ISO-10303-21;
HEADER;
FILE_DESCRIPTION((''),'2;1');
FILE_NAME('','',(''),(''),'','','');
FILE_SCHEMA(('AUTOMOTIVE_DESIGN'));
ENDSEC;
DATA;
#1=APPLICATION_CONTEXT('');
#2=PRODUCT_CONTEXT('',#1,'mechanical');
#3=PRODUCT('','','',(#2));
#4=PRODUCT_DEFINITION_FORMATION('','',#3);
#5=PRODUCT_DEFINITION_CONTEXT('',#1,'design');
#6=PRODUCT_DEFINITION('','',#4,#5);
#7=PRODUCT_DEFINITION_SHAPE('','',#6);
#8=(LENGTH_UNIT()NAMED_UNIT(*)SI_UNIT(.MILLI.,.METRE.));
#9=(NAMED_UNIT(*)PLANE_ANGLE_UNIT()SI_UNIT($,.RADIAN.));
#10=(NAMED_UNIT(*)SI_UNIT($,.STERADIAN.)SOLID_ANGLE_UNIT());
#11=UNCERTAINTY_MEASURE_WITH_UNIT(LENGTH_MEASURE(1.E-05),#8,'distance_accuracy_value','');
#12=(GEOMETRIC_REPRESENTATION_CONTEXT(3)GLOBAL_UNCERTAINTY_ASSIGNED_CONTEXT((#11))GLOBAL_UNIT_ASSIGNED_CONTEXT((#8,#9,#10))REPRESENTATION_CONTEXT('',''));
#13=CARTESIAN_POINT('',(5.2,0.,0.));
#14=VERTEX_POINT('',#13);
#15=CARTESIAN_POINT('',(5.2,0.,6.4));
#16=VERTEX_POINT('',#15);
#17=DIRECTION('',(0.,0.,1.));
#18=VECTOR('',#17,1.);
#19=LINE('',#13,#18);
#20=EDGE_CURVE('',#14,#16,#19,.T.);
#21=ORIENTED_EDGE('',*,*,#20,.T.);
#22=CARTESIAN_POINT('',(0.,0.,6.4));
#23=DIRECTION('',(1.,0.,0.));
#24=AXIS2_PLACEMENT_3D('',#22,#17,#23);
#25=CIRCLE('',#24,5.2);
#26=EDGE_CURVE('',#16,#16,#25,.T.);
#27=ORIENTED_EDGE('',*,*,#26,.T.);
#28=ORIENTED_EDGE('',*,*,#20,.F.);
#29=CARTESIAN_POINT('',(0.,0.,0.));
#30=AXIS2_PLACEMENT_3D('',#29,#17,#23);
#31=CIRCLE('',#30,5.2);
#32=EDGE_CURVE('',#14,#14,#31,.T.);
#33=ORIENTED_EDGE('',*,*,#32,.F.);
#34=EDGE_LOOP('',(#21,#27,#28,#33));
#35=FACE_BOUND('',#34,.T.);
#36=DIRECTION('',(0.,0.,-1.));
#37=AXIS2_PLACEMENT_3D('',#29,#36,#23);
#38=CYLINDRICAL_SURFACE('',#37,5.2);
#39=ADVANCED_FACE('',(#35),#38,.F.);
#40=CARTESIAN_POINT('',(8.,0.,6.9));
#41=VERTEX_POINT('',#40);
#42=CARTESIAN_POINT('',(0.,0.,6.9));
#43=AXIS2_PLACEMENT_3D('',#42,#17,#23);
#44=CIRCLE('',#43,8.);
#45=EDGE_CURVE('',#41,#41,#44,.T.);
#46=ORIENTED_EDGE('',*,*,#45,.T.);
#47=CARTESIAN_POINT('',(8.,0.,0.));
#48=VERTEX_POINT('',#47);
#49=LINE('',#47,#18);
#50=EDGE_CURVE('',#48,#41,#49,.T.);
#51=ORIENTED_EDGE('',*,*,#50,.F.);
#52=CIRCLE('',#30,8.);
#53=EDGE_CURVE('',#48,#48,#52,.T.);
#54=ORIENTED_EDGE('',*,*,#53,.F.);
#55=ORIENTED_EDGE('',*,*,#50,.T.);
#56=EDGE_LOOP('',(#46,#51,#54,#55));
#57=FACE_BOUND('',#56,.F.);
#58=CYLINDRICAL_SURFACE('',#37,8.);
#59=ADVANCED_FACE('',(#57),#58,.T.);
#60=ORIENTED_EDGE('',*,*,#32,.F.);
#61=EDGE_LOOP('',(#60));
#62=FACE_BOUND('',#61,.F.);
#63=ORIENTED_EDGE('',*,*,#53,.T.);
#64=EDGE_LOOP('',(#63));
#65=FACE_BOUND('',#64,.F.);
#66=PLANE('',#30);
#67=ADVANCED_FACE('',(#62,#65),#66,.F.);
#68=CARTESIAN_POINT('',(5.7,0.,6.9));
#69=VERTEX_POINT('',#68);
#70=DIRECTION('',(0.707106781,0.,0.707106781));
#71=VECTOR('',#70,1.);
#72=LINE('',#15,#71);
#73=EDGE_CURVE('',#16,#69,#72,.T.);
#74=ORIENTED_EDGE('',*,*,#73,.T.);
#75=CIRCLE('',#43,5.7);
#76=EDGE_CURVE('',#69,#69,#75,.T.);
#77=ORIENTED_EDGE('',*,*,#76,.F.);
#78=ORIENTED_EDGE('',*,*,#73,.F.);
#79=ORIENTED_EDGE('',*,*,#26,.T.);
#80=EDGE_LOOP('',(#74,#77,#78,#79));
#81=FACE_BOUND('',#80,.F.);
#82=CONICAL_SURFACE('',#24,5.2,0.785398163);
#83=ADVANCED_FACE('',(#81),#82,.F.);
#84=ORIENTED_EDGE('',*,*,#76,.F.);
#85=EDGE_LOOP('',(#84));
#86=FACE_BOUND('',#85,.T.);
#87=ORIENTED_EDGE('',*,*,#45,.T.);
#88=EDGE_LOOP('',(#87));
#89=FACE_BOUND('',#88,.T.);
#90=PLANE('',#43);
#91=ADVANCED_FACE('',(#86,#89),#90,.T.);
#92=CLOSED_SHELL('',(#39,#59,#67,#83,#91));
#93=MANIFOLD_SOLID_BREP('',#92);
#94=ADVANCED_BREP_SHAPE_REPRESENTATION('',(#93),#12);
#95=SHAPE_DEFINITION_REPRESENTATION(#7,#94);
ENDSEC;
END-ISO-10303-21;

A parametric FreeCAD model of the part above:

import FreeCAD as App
import Part
import Sketcher

V = App.Vector


def edges_at(feature, points):
    """Names of the edges that pass closest to the given points."""
    edges = feature.Shape.Edges
    near = lambda p: min(range(len(edges)), key=lambda i: edges[i].distToShape(Part.Vertex(*p))[0])
    return sorted({f"Edge{near(p) + 1}" for p in points})

doc = App.newDocument("Part")
body = doc.addObject("PartDesign::Body", "Body")

# Sketch on XY plane
sketch1 = body.newObject("Sketcher::SketchObject", "Sketch")
sketch1.AttachmentSupport = (doc.getObject("XY_Plane"), [""])
sketch1.MapMode = "FlatFace"
sketch1.addGeometry([
    Part.Circle(V(0, 0, 0), V(0, 0, 1), 8),
    Part.Circle(V(0, 0, 0), V(0, 0, 1), 5),
], False)
sketch1.addConstraint([
    Sketcher.Constraint("Coincident", 0, 3, -1, 1),
    Sketcher.Constraint("Coincident", 1, 3, -1, 1),
    Sketcher.Constraint("Diameter", 0, 16.0),
    Sketcher.Constraint("Diameter", 1, 10.4),
])
pad1 = body.newObject("PartDesign::Pad", "Pad")
pad1.Profile = sketch1
pad1.Length = 6.9
doc.recompute()

chamfer = body.newObject("PartDesign::Chamfer", "Chamfer")
chamfer.Base = (pad1, edges_at(pad1, [(-4.848, 1.88, 6.9)]))
chamfer.Size = 0.5

doc.recompute()
